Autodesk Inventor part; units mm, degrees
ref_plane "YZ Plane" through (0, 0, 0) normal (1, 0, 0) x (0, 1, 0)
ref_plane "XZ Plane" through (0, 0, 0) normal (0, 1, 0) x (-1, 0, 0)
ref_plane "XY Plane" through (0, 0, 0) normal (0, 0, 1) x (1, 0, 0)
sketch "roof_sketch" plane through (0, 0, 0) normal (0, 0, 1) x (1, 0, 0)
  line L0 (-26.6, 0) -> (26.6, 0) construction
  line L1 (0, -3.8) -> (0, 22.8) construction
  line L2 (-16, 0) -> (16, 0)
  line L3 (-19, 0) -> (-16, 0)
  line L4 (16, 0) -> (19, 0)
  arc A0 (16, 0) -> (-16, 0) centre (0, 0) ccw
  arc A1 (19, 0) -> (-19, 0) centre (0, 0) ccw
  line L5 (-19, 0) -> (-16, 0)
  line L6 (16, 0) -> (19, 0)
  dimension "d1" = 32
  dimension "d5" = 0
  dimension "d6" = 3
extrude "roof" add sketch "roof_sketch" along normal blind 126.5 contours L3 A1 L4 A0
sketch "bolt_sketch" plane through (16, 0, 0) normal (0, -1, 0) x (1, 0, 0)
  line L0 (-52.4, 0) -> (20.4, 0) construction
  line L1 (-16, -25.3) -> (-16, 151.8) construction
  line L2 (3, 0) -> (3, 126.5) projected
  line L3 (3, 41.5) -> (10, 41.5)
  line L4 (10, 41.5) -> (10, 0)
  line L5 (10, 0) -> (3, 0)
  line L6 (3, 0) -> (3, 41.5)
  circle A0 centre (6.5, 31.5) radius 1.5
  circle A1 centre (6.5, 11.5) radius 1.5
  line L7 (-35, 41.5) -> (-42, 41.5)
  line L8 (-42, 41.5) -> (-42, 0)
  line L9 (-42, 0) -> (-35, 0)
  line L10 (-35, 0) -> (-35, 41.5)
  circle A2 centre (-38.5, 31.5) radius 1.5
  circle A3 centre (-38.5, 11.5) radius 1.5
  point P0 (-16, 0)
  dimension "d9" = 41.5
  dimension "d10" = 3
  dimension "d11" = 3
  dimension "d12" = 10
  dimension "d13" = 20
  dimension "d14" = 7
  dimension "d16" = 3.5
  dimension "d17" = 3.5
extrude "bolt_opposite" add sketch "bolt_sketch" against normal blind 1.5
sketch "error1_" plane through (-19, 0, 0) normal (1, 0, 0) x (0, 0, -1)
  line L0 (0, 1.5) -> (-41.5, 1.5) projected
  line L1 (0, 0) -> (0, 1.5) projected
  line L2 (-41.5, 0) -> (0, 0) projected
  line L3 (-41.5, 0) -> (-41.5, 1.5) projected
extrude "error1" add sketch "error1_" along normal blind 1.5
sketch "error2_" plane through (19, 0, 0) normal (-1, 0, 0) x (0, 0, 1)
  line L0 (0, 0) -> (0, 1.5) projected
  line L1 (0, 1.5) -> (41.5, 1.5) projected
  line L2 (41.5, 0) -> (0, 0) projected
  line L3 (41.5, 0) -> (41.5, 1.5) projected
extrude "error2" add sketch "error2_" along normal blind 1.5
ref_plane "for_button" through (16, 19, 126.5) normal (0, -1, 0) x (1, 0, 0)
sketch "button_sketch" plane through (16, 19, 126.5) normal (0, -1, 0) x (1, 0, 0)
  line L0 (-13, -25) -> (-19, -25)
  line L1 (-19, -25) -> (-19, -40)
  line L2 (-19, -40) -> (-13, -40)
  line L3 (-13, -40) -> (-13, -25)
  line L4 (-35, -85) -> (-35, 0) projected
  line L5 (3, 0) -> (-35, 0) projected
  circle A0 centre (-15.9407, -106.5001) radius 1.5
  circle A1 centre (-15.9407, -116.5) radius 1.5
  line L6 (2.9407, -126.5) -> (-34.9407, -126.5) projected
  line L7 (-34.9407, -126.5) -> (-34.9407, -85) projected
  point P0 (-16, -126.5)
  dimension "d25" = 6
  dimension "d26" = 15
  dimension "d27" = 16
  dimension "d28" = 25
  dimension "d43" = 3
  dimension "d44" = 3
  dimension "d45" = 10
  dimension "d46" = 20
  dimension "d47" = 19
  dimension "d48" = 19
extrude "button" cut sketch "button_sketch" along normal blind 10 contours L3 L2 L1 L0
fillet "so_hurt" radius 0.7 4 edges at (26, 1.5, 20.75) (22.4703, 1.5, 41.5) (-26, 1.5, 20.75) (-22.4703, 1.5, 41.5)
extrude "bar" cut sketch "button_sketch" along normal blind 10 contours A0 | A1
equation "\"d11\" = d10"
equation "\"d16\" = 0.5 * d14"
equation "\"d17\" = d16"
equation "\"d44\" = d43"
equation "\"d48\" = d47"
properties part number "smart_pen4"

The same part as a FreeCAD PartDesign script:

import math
import FreeCAD as App
import Part
import Sketcher
from FreeCAD import Vector


def edges_at(feature, points):
    """Names of the edges that pass closest to the given points."""
    edges = feature.Shape.Edges
    near = lambda p: min(range(len(edges)), key=lambda i: edges[i].distToShape(Part.Vertex(*p))[0])
    return sorted({f"Edge{near(p) + 1}" for p in points})

doc = App.newDocument("Part")
body = doc.addObject("PartDesign::Body", "Body")
body.AllowCompound = True

sketch1 = body.newObject("Sketcher::SketchObject", "Sketch")
sketch1.AttachmentSupport = (doc.getObject("XY_Plane"), [""])
sketch1.MapMode = "FlatFace"
sketch1.addGeometry([
    Part.LineSegment(Vector(-19, 0, 0), Vector(-16, 0, 0)),
    Part.ArcOfCircle(Part.Circle(Vector(0, 0, 0), Vector(0, 0, 1), 16), math.radians(0), math.radians(180)),
    Part.LineSegment(Vector(16, 0, 0), Vector(19, 0, 0)),
    Part.ArcOfCircle(Part.Circle(Vector(0, 0, 0), Vector(0, 0, 1), 19), math.radians(0), math.radians(180)),
], False)
sketch1.addConstraint([
    Sketcher.Constraint("Coincident", 0, 2, 1, 2),
    Sketcher.Constraint("Coincident", 1, 1, 2, 1),
    Sketcher.Constraint("Coincident", 2, 2, 3, 1),
    Sketcher.Constraint("Coincident", 3, 2, 0, 1),
    Sketcher.Constraint("Horizontal", 0),
    Sketcher.Constraint("Horizontal", 2),
    Sketcher.Constraint("Coincident", 1, 3, -1, 1),
    Sketcher.Constraint("Coincident", 3, 3, -1, 1),
    Sketcher.Constraint("PointOnObject", 0, 2, -1),
    Sketcher.Constraint("PointOnObject", 1, 1, -1),
    Sketcher.Constraint("Radius", 1, 16.0),
    Sketcher.Constraint("DistanceX", 0, 1, 0, 2, 3.0),
])
pad1 = body.newObject("PartDesign::Pad", "Pad")
pad1.Profile = sketch1
pad1.Length = 126.5

sketch2 = body.newObject("Sketcher::SketchObject", "Sketch001")
sketch2.AttachmentSupport = (doc.getObject("XZ_Plane"), [""])
sketch2.MapMode = "FlatFace"
sketch2.addGeometry([
    Part.LineSegment(Vector(19, 41.5, 0), Vector(19, 0, 0)),
    Part.LineSegment(Vector(19, 0, 0), Vector(26, 0, 0)),
    Part.LineSegment(Vector(26, 0, 0), Vector(26, 41.5, 0)),
    Part.LineSegment(Vector(26, 41.5, 0), Vector(19, 41.5, 0)),
    Part.Circle(Vector(22.5, 11.5, 0), Vector(0, 0, 1), 1.5),
    Part.Circle(Vector(22.5, 31.5, 0), Vector(0, 0, 1), 1.5),
    Part.LineSegment(Vector(-19, 0, 0), Vector(-19, 41.5, 0)),
    Part.LineSegment(Vector(-19, 41.5, 0), Vector(-26, 41.5, 0)),
    Part.LineSegment(Vector(-26, 41.5, 0), Vector(-26, 0, 0)),
    Part.LineSegment(Vector(-26, 0, 0), Vector(-19, 0, 0)),
    Part.Circle(Vector(-22.5, 11.5, 0), Vector(0, 0, 1), 1.5),
    Part.Circle(Vector(-22.5, 31.5, 0), Vector(0, 0, 1), 1.5),
], False)
sketch2.addConstraint([
    Sketcher.Constraint("Coincident", 0, 2, 1, 1),
    Sketcher.Constraint("Coincident", 1, 2, 2, 1),
    Sketcher.Constraint("Coincident", 2, 2, 3, 1),
    Sketcher.Constraint("Coincident", 3, 2, 0, 1),
    Sketcher.Constraint("Coincident", 6, 2, 7, 1),
    Sketcher.Constraint("Coincident", 7, 2, 8, 1),
    Sketcher.Constraint("Coincident", 8, 2, 9, 1),
    Sketcher.Constraint("Coincident", 9, 2, 6, 1),
    Sketcher.Constraint("Vertical", 0),
    Sketcher.Constraint("Horizontal", 1),
    Sketcher.Constraint("Vertical", 2),
    Sketcher.Constraint("Horizontal", 3),
    Sketcher.Constraint("Vertical", 6),
    Sketcher.Constraint("Horizontal", 7),
    Sketcher.Constraint("Vertical", 8),
    Sketcher.Constraint("Horizontal", 9),
    Sketcher.Constraint("Equal", 4, 5),
    Sketcher.Constraint("Equal", 5, 10),
    Sketcher.Constraint("Equal", 10, 11),
    Sketcher.Constraint("Symmetric", 1, 2, 8, 2, -1, 1),
    Sketcher.Constraint("Symmetric", 4, 3, 10, 3, -2),
    Sketcher.Constraint("Symmetric", 5, 3, 11, 3, -2),
    Sketcher.Constraint("Symmetric", 3, 2, 6, 2, -2),
    Sketcher.Constraint("PointOnObject", 0, 2, -1),
    Sketcher.Constraint("Vertical", 4, 3, 5, 3),
    Sketcher.Constraint("Diameter", 4, 3.0),
    Sketcher.Constraint("DistanceX", 1, 1, 1, 2, 7.0),
    Sketcher.Constraint("DistanceY", 0, 2, 0, 1, 41.5),
    Sketcher.Constraint("DistanceY", 4, 3, 5, 3, 20.0),
    Sketcher.Constraint("DistanceY", 5, 3, 2, 2, 10.0),
    Sketcher.Constraint("DistanceX", 0, 2, 4, 3, 3.5),
    Sketcher.Constraint("DistanceX", 10, 3, 0, 2, 41.5),
])
pad2 = body.newObject("PartDesign::Pad", "Pad001")
pad2.Profile = sketch2
pad2.Length = 1.5
pad2.Reversed = True

sketch3 = body.newObject("Sketcher::SketchObject", "Sketch002")
sketch3.AttachmentSupport = (doc.getObject("YZ_Plane"), [""])
sketch3.MapMode = "FlatFace"
sketch3.AttachmentOffset = App.Placement(Vector(0, 0, -19), App.Rotation())
sketch3.addGeometry([
    Part.LineSegment(Vector(0, 0, 0), Vector(1.5, 0, 0)),
    Part.LineSegment(Vector(1.5, 0, 0), Vector(1.5, 41.5, 0)),
    Part.LineSegment(Vector(1.5, 41.5, 0), Vector(0, 41.5, 0)),
    Part.LineSegment(Vector(0, 41.5, 0), Vector(0, 0, 0)),
], False)
sketch3.addConstraint([
    Sketcher.Constraint("Coincident", 0, 2, 1, 1),
    Sketcher.Constraint("Coincident", 1, 2, 2, 1),
    Sketcher.Constraint("Coincident", 2, 2, 3, 1),
    Sketcher.Constraint("Coincident", 3, 2, 0, 1),
    Sketcher.Constraint("Horizontal", 0),
    Sketcher.Constraint("Vertical", 1),
    Sketcher.Constraint("Horizontal", 2),
    Sketcher.Constraint("Vertical", 3),
    Sketcher.Constraint("Coincident", 3, 2, -1, 1),
    Sketcher.Constraint("DistanceX", 0, 1, 0, 2, 1.5),
    Sketcher.Constraint("DistanceY", 1, 1, 1, 2, 41.5),
])
pad3 = body.newObject("PartDesign::Pad", "Pad002")
pad3.Profile = sketch3
pad3.Length = 1.5

sketch4 = body.newObject("Sketcher::SketchObject", "Sketch003")
sketch4.AttachmentSupport = (doc.getObject("YZ_Plane"), [""])
sketch4.MapMode = "FlatFace"
sketch4.AttachmentOffset = App.Placement(Vector(0, 0, 19), App.Rotation())
sketch4.addGeometry([
    Part.LineSegment(Vector(1.5, 0, 0), Vector(0, 0, 0)),
    Part.LineSegment(Vector(0, 0, 0), Vector(0, 41.5, 0)),
    Part.LineSegment(Vector(0, 41.5, 0), Vector(1.5, 41.5, 0)),
    Part.LineSegment(Vector(1.5, 41.5, 0), Vector(1.5, 0, 0)),
], False)
sketch4.addConstraint([
    Sketcher.Constraint("Coincident", 0, 2, 1, 1),
    Sketcher.Constraint("Coincident", 1, 2, 2, 1),
    Sketcher.Constraint("Coincident", 2, 2, 3, 1),
    Sketcher.Constraint("Coincident", 3, 2, 0, 1),
    Sketcher.Constraint("Horizontal", 0),
    Sketcher.Constraint("Vertical", 1),
    Sketcher.Constraint("Horizontal", 2),
    Sketcher.Constraint("Vertical", 3),
    Sketcher.Constraint("Coincident", 0, 2, -1, 1),
    Sketcher.Constraint("DistanceX", 0, 2, 0, 1, 1.5),
    Sketcher.Constraint("DistanceY", 1, 1, 1, 2, 41.5),
])
pad4 = body.newObject("PartDesign::Pad", "Pad003")
pad4.Profile = sketch4
pad4.Length = 1.5
pad4.Reversed = True

sketch5 = body.newObject("Sketcher::SketchObject", "Sketch004")
sketch5.AttachmentSupport = (doc.getObject("XZ_Plane"), [""])
sketch5.MapMode = "FlatFace"
sketch5.AttachmentOffset = App.Placement(Vector(0, 0, -19), App.Rotation())
sketch5.addGeometry([
    Part.LineSegment(Vector(3, 86, 0), Vector(3, 102, 0)),
    Part.LineSegment(Vector(3, 102, 0), Vector(-3, 102, 0)),
    Part.LineSegment(Vector(-3, 102, 0), Vector(-3, 86, 0)),
    Part.LineSegment(Vector(-3, 86, 0), Vector(3, 86, 0)),
], False)
sketch5.addConstraint([
    Sketcher.Constraint("Coincident", 0, 2, 1, 1),
    Sketcher.Constraint("Coincident", 1, 2, 2, 1),
    Sketcher.Constraint("Coincident", 2, 2, 3, 1),
    Sketcher.Constraint("Coincident", 3, 2, 0, 1),
    Sketcher.Constraint("Vertical", 0),
    Sketcher.Constraint("Horizontal", 1),
    Sketcher.Constraint("Vertical", 2),
    Sketcher.Constraint("Horizontal", 3),
    Sketcher.Constraint("DistanceX", 1, 2, 1, 1, 6.0),
    Sketcher.Constraint("DistanceY", 0, 1, 0, 2, 15.0),
    Sketcher.Constraint("DistanceX", -1, 1, 0, 2, 3.0),
    Sketcher.Constraint("DistanceY", -1, 1, 0, 2, 101.5),
])
pocket1 = body.newObject("PartDesign::Pocket", "Pocket")
pocket1.Profile = sketch5
pocket1.Length = 10
pocket1.Reversed = True
doc.recompute()

fillet = body.newObject("PartDesign::Fillet", "Fillet")
fillet.Base = (pocket1, edges_at(pocket1, [
    (26, 1.5, 20.75),
    (22.47, 1.5, 41.5),
    (-26, 1.5, 20.75),
    (-22.47, 1.5, 41.5),
]))
fillet.Radius = 0.7

sketch6 = body.newObject("Sketcher::SketchObject", "Sketch005")
sketch6.AttachmentSupport = (doc.getObject("XZ_Plane"), [""])
sketch6.MapMode = "FlatFace"
sketch6.AttachmentOffset = App.Placement(Vector(0, 0, -19), App.Rotation())
sketch6.addGeometry([
    Part.Circle(Vector(0.1, 20, 0), Vector(0, 0, 1), 1.5),
    Part.Circle(Vector(0.1, 10, 0), Vector(0, 0, 1), 1.5),
], False)
sketch6.addConstraint([
    Sketcher.Constraint("Equal", 0, 1),
    Sketcher.Constraint("Vertical", 0, 3, 1, 3),
    Sketcher.Constraint("Diameter", 0, 3.0),
    Sketcher.Constraint("DistanceY", -1, 1, 0, 3, 20.0),
    Sketcher.Constraint("DistanceY", -1, 1, 1, 3, 10.0),
    Sketcher.Constraint("DistanceX", -1, 1, 0, 3, 0.0593),
])
pocket2 = body.newObject("PartDesign::Pocket", "Pocket001")
pocket2.Profile = sketch6
pocket2.Length = 10
pocket2.Reversed = True

doc.recompute()
